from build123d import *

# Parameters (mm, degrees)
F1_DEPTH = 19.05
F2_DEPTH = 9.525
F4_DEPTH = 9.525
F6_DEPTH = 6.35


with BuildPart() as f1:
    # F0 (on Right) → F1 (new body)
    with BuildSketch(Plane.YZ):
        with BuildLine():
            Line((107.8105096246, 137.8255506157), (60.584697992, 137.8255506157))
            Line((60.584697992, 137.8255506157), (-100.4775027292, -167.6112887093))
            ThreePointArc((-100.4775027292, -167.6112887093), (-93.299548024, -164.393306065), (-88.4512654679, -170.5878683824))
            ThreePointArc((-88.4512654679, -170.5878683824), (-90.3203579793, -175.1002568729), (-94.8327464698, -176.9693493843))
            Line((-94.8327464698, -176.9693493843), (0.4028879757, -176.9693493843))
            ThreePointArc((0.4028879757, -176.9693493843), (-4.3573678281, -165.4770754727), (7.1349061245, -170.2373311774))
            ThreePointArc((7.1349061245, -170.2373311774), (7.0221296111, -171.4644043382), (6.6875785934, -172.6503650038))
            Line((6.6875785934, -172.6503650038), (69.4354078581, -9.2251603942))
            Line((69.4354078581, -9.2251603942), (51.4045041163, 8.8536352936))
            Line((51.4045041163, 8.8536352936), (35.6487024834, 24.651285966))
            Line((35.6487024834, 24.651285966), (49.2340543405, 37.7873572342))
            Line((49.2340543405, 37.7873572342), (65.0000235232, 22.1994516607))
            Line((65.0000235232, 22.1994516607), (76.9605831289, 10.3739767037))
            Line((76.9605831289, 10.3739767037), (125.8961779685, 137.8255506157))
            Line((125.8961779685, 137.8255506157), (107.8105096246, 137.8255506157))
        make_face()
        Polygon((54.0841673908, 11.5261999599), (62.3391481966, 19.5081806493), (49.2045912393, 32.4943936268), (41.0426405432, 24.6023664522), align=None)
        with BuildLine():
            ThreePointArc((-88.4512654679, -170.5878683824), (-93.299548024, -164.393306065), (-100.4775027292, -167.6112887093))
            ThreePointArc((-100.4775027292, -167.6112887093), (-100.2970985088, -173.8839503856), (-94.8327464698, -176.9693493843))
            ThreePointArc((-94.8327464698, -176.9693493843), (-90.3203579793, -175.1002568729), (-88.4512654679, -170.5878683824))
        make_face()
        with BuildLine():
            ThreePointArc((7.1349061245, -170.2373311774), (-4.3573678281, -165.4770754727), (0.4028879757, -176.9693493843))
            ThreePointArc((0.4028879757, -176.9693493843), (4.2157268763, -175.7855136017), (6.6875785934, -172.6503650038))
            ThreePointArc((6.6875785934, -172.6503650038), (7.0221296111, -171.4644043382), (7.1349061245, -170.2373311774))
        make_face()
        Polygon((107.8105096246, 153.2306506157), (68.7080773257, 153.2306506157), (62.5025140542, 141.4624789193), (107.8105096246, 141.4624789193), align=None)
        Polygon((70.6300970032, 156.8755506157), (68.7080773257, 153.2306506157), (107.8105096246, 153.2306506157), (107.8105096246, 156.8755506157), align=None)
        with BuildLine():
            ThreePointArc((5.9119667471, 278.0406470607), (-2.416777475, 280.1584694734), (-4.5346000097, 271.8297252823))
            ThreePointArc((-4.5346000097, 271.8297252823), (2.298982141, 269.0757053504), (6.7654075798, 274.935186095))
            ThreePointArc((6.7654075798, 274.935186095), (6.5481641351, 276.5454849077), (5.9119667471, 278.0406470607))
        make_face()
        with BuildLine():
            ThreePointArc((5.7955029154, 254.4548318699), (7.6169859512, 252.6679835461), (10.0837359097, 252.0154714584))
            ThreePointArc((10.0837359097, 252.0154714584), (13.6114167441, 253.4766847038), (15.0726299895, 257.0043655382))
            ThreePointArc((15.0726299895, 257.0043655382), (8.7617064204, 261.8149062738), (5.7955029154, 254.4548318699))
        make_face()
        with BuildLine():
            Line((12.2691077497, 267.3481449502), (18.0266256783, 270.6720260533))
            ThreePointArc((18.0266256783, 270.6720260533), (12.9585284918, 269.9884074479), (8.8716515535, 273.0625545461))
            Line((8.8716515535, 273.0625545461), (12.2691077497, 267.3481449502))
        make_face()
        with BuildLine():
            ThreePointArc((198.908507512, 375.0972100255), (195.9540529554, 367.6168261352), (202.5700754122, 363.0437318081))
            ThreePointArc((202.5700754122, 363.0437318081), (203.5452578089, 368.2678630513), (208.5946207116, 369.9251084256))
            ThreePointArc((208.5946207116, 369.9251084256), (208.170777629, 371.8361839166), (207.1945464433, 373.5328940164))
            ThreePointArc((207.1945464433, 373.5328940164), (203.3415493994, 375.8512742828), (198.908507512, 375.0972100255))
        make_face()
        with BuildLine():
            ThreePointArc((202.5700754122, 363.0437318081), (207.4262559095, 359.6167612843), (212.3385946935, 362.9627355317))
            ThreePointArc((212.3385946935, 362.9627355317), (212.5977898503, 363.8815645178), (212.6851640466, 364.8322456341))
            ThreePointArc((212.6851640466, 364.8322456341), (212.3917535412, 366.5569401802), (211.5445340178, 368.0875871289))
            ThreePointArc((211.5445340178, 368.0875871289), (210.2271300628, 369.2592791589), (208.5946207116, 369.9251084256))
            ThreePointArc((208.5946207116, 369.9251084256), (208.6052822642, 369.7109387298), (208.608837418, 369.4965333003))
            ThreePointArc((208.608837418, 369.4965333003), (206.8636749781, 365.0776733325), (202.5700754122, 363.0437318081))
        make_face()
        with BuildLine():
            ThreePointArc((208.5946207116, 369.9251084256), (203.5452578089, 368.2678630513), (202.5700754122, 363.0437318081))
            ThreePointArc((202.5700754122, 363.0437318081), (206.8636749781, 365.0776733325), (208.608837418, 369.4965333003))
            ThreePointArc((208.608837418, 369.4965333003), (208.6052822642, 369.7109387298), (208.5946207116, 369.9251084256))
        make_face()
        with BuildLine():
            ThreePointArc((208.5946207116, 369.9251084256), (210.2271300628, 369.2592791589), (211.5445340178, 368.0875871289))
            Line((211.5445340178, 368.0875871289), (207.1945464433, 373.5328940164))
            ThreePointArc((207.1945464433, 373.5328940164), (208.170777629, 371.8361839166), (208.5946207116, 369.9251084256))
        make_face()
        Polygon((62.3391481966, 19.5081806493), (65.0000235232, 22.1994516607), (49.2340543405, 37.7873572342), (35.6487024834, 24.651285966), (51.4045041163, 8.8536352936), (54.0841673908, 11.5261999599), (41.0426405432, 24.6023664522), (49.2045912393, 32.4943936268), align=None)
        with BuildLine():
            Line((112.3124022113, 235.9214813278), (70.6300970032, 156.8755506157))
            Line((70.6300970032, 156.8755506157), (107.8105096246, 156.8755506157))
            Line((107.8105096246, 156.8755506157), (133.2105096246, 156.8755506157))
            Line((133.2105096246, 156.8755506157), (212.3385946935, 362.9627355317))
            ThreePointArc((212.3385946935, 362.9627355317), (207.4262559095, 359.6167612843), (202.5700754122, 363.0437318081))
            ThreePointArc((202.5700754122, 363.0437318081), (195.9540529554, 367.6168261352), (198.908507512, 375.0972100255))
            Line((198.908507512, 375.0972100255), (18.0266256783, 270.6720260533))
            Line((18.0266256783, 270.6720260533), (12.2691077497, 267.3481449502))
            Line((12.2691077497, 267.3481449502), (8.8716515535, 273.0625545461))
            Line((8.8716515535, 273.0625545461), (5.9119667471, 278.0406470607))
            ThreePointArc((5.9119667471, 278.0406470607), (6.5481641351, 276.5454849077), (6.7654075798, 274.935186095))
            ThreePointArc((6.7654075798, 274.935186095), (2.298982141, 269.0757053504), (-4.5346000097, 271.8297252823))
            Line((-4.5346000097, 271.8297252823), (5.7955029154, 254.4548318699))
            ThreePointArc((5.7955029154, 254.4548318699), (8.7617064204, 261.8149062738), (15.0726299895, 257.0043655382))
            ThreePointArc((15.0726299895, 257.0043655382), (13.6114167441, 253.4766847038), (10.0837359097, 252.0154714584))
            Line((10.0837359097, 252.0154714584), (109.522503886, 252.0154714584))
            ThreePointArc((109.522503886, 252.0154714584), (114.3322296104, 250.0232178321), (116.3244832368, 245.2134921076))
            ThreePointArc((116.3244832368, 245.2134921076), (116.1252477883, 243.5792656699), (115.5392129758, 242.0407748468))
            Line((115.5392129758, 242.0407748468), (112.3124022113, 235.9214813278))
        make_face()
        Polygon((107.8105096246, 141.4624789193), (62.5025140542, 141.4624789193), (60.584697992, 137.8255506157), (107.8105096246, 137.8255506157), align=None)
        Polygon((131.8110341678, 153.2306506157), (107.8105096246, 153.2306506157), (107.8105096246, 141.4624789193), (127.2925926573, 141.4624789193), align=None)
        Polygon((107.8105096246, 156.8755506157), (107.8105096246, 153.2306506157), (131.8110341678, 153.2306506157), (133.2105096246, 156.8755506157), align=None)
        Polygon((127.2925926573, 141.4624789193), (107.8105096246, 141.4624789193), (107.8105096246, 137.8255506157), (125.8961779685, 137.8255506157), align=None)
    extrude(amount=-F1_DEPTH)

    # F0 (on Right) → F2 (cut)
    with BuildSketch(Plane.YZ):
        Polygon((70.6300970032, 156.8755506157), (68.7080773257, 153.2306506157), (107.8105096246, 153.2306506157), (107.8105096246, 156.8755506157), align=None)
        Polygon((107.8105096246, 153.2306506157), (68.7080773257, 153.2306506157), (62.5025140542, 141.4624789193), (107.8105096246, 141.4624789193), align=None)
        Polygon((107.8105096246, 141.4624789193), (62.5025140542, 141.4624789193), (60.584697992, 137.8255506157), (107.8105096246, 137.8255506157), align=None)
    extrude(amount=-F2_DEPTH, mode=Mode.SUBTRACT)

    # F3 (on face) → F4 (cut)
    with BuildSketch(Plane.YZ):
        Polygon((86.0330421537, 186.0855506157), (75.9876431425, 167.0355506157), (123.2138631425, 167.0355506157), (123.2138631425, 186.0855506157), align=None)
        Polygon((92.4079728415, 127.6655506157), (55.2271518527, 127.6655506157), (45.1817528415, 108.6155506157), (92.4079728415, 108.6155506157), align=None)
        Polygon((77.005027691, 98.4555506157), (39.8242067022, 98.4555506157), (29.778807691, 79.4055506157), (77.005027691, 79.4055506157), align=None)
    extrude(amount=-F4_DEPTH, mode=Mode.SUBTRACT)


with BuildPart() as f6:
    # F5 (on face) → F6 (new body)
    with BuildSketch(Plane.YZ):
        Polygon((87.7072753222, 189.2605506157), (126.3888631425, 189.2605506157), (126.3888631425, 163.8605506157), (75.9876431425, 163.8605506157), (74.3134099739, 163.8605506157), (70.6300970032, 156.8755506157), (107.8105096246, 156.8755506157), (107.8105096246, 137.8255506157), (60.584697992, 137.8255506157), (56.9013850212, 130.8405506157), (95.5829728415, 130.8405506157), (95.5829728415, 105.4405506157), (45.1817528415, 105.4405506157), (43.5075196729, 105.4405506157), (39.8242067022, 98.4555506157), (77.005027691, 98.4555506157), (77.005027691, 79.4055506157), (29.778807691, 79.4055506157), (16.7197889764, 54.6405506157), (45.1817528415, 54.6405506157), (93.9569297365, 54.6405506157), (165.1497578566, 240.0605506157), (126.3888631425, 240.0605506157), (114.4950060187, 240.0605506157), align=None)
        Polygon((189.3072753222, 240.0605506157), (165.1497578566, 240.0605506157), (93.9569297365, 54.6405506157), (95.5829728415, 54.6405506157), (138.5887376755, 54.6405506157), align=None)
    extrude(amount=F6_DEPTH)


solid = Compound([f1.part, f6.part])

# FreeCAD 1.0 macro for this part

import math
import FreeCAD as App
import Part
import Sketcher
from FreeCAD import Vector
Q = App.Units.Quantity

doc = App.newDocument("Part")
body = doc.addObject("PartDesign::Body", "Body")

# Sketch on YZ plane
sketch1 = body.newObject("Sketcher::SketchObject", "Sketch")
sketch1.AttachmentSupport = (doc.getObject("YZ_Plane"), [""])
sketch1.MapMode = "FlatFace"
sketch1.addGeometry([
    Part.LineSegment(Vector(60.584698, 137.825551, 0), Vector(-100.477503, -167.611289, 0)),  # 0
    Part.ArcOfCircle(Part.Circle(Vector(-94.832746, -170.587868, 0), Vector(0, 0, 1), 6.381481), math.radians(152.196527), math.radians(270)),  # 1
    Part.LineSegment(Vector(-94.832746, -176.969349, 0), Vector(0.402888, -176.969349, 0)),  # 2
    Part.ArcOfCircle(Part.Circle(Vector(0.402888, -170.237331, 0), Vector(0, 0, 1), 6.732018), math.radians(-90), math.radians(-21.004506)),  # 3
    Part.LineSegment(Vector(6.687579, -172.650365, 0), Vector(69.435408, -9.22516, 0)),  # 4
    Part.LineSegment(Vector(69.435408, -9.22516, 0), Vector(51.404504, 8.853635, 0)),  # 5
    Part.LineSegment(Vector(51.404504, 8.853635, 0), Vector(54.084167, 11.5262, 0)),  # 6
    Part.LineSegment(Vector(54.084167, 11.5262, 0), Vector(62.339148, 19.508181, 0)),  # 7
    Part.LineSegment(Vector(62.339148, 19.508181, 0), Vector(65.000024, 22.199452, 0)),  # 8
    Part.LineSegment(Vector(65.000024, 22.199452, 0), Vector(76.960583, 10.373977, 0)),  # 9
    Part.LineSegment(Vector(76.960583, 10.373977, 0), Vector(125.896178, 137.825551, 0)),  # 10
    Part.LineSegment(Vector(125.896178, 137.825551, 0), Vector(127.292593, 141.462479, 0)),  # 11
    Part.LineSegment(Vector(127.292593, 141.462479, 0), Vector(131.811034, 153.230651, 0)),  # 12
    Part.LineSegment(Vector(131.811034, 153.230651, 0), Vector(133.21051, 156.875551, 0)),  # 13
    Part.LineSegment(Vector(133.21051, 156.875551, 0), Vector(212.338595, 362.962736, 0)),  # 14
    Part.ArcOfCircle(Part.Circle(Vector(207.4695, 364.832246, 0), Vector(0, 0, 1), 5.215664), math.radians(-21.004512), math.radians(0)),  # 15
    Part.ArcOfCircle(Part.Circle(Vector(207.4695, 364.832246, 0), Vector(0, 0, 1), 5.215664), math.radians(0), math.radians(38.619617)),  # 16
    Part.LineSegment(Vector(211.544534, 368.087587, 0), Vector(207.194546, 373.532894, 0)),  # 17
    Part.ArcOfCircle(Part.Circle(Vector(202.141842, 369.496533, 0), Vector(0, 0, 1), 6.466996), math.radians(38.619662), math.radians(119.998329)),  # 18
    Part.LineSegment(Vector(198.908508, 375.09721, 0), Vector(18.026626, 270.672026, 0)),  # 19
    Part.ArcOfCircle(Part.Circle(Vector(14.659833, 276.503872, 0), Vector(0, 0, 1), 6.733923), math.radians(-149.266739), math.radians(-60.001662)),  # 20
    Part.LineSegment(Vector(8.871652, 273.062555, 0), Vector(5.911967, 278.040647, 0)),  # 21
    Part.ArcOfCircle(Part.Circle(Vector(0.688683, 274.935186, 0), Vector(0, 0, 1), 6.076724), math.radians(30.733258), math.radians(210.733257)),  # 22
    Part.LineSegment(Vector(-4.5346, 271.829725, 0), Vector(5.795503, 254.454832, 0)),  # 23
    Part.ArcOfCircle(Part.Circle(Vector(10.083736, 257.004366, 0), Vector(0, 0, 1), 4.988894), math.radians(-149.266748), math.radians(-90)),  # 24
    Part.LineSegment(Vector(10.083736, 252.015471, 0), Vector(109.522504, 252.015471, 0)),  # 25
    Part.ArcOfCircle(Part.Circle(Vector(109.522504, 245.213492, 0), Vector(0, 0, 1), 6.801979), math.radians(0), math.radians(90)),  # 26
    Part.ArcOfCircle(Part.Circle(Vector(109.522504, 245.213492, 0), Vector(0, 0, 1), 6.801979), math.radians(-27.803475), math.radians(0)),  # 27
    Part.LineSegment(Vector(115.539213, 242.040775, 0), Vector(112.312402, 235.921481, 0)),  # 28
    Part.LineSegment(Vector(112.312402, 235.921481, 0), Vector(70.630097, 156.875551, 0)),  # 29
    Part.LineSegment(Vector(70.630097, 156.875551, 0), Vector(68.708077, 153.230651, 0)),  # 30
    Part.LineSegment(Vector(68.708077, 153.230651, 0), Vector(62.502514, 141.462479, 0)),  # 31
    Part.LineSegment(Vector(62.502514, 141.462479, 0), Vector(60.584698, 137.825551, 0)),  # 32
], False)
sketch1.addConstraint([
    Sketcher.Constraint("Coincident", 0, 2, 1, 1),
    Sketcher.Constraint("Coincident", 1, 2, 2, 1),
    Sketcher.Constraint("Coincident", 2, 2, 3, 1),
    Sketcher.Constraint("Coincident", 3, 2, 4, 1),
    Sketcher.Constraint("Coincident", 4, 2, 5, 1),
    Sketcher.Constraint("Coincident", 5, 2, 6, 1),
    Sketcher.Constraint("Coincident", 6, 2, 7, 1),
    Sketcher.Constraint("Coincident", 7, 2, 8, 1),
    Sketcher.Constraint("Coincident", 8, 2, 9, 1),
    Sketcher.Constraint("Coincident", 9, 2, 10, 1),
    Sketcher.Constraint("Coincident", 10, 2, 11, 1),
    Sketcher.Constraint("Coincident", 11, 2, 12, 1),
    Sketcher.Constraint("Coincident", 12, 2, 13, 1),
    Sketcher.Constraint("Coincident", 13, 2, 14, 1),
    Sketcher.Constraint("Coincident", 14, 2, 15, 1),
    Sketcher.Constraint("Coincident", 15, 2, 16, 1),
    Sketcher.Constraint("Coincident", 16, 2, 17, 1),
    Sketcher.Constraint("Coincident", 17, 2, 18, 1),
    Sketcher.Constraint("Coincident", 18, 2, 19, 1),
    Sketcher.Constraint("Coincident", 19, 2, 20, 2),
    Sketcher.Constraint("Coincident", 20, 1, 21, 1),
    Sketcher.Constraint("Coincident", 21, 2, 22, 1),
    Sketcher.Constraint("Coincident", 22, 2, 23, 1),
    Sketcher.Constraint("Coincident", 23, 2, 24, 1),
    Sketcher.Constraint("Coincident", 24, 2, 25, 1),
    Sketcher.Constraint("Coincident", 25, 2, 26, 2),
    Sketcher.Constraint("Coincident", 26, 1, 27, 2),
    Sketcher.Constraint("Coincident", 27, 1, 28, 1),
    Sketcher.Constraint("Coincident", 28, 2, 29, 1),
    Sketcher.Constraint("Coincident", 29, 2, 30, 1),
    Sketcher.Constraint("Coincident", 30, 2, 31, 1),
    Sketcher.Constraint("Coincident", 31, 2, 32, 1),
    Sketcher.Constraint("Coincident", 32, 2, 0, 1),
    Sketcher.Constraint("Horizontal", 2),
    Sketcher.Constraint("Horizontal", 25),
    Sketcher.Constraint("Coincident", 16, 3, 15, 3),
    Sketcher.Constraint("Coincident", 27, 3, 26, 3),
    Sketcher.Constraint("DistanceY", 10, 2, 13, 2, Q("0.75 in")),
    Sketcher.Constraint("DistanceY", 10, 2, 29, 2, Q("0.75 in")),
    Sketcher.Constraint("DistanceY", 32, 2, 29, 2, Q("0.75 in")),
    Sketcher.Constraint("Distance", 6, Q("0.149 in")),
    Sketcher.Constraint("Distance", 8, Q("0.149 in")),
    Sketcher.Constraint("Radius", 1, Q("6.381481 mm")),
    Sketcher.Constraint("Radius", 3, Q("6.732018 mm")),
    Sketcher.Constraint("Radius", 26, Q("6.801979 mm")),
    Sketcher.Constraint("Radius", 15, Q("5.215664 mm")),
    Sketcher.Constraint("Radius", 18, Q("6.466996 mm")),
    Sketcher.Constraint("Radius", 20, Q("6.733923 mm")),
    Sketcher.Constraint("Radius", 22, Q("6.076724 mm")),
    Sketcher.Constraint("Radius", 24, Q("4.988894 mm")),
    Sketcher.Constraint("DistanceY", 10, 2, 12, 2, Q("0.6065 in")),
    Sketcher.Constraint("DistanceX", 19, 2, 26, 3, Q("3.6021999 in")),
    Sketcher.Constraint("DistanceY", 24, 3, 21, 2, Q("0.8282001 in")),
    Sketcher.Constraint("DistanceX", 19, 2, 25, 2, Q("3.6021999 in")),
    Sketcher.Constraint("DistanceY", 30, 2, 29, 2, Q("0.1435 in")),
    Sketcher.Constraint("DistanceX", 30, 2, 10, 2, Q("2.2515 in")),
    Sketcher.Constraint("Distance", 12, Q("12.605799 mm")),
    Sketcher.Constraint("Distance", 32, Q("4.111601 mm")),
    Sketcher.Constraint("DistanceX", -1, 1, 15, 3, Q("207.4695 mm")),
    Sketcher.Constraint("DistanceY", -1, 1, 6, 2, Q("11.5262 mm")),
    Sketcher.Constraint("DistanceX", 22, 2, -1, 1, Q("4.5346 mm")),
    Sketcher.Constraint("DistanceY", 1, 3, 18, 3, Q("540.084402 mm")),
    Sketcher.Constraint("DistanceY", 3, 2, 5, 2, Q("181.504 mm")),
    Sketcher.Constraint("DistanceY", 8, 2, 10, 2, Q("115.626099 mm")),
    Sketcher.Constraint("DistanceY", 7, 2, 11, 2, Q("121.954298 mm")),
    Sketcher.Constraint("DistanceY", 25, 2, 20, 3, Q("24.4884 mm")),
    Sketcher.Constraint("DistanceX", 27, 3, 28, 2, Q("2.789898 mm")),
    Sketcher.Constraint("DistanceX", 32, 2, 29, 2, Q("10.045399 mm")),
    Sketcher.Constraint("Distance", 7, Q("11.482888 mm")),
    Sketcher.Constraint("Distance", 21, Q("5.791471 mm")),
    Sketcher.Constraint("DistanceX", 2, 1, 2, 2, Q("95.235634 mm")),
    Sketcher.Constraint("DistanceX", 25, 1, 25, 2, Q("99.438768 mm")),
    Sketcher.Constraint("DistanceY", 1, 3, -1, 1, Q("170.587868 mm")),
    Sketcher.Constraint("DistanceX", -1, 1, 18, 3, Q("202.141842 mm")),
    Sketcher.Constraint("DistanceY", -1, 1, 20, 3, Q("276.503872 mm")),
    Sketcher.Constraint("DistanceY", 0, 2, -1, 1, Q("167.611289 mm")),
    Sketcher.Constraint("DistanceX", -1, 1, 3, 2, Q("6.687579 mm")),
    Sketcher.Constraint("DistanceY", 4, 2, -1, 1, Q("9.22516 mm")),
    Sketcher.Constraint("DistanceX", -1, 1, 7, 2, Q("62.339148 mm")),
    Sketcher.Constraint("DistanceY", -1, 1, 7, 2, Q("19.508181 mm")),
    Sketcher.Constraint("DistanceY", -1, 1, 8, 2, Q("22.199452 mm")),
    Sketcher.Constraint("DistanceX", -1, 1, 13, 2, Q("133.21051 mm")),
    Sketcher.Constraint("DistanceY", -1, 1, 18, 2, Q("375.09721 mm")),
    Sketcher.Constraint("DistanceX", -1, 1, 20, 1, Q("8.871652 mm")),
    Sketcher.Constraint("DistanceY", -1, 1, 23, 2, Q("254.454832 mm")),
    Sketcher.Constraint("DistanceY", -1, 1, 28, 2, Q("235.921481 mm")),
    Sketcher.Constraint("DistanceY", -1, 1, 31, 2, Q("141.462479 mm")),
    Sketcher.Constraint("DistanceX", 1, 3, 18, 3, Q("296.974588 mm")),
    Sketcher.Constraint("DistanceX", 20, 3, 18, 3, Q("187.482008 mm")),
    Sketcher.Constraint("DistanceX", 22, 3, 20, 3, Q("13.97115 mm")),
    Sketcher.Constraint("DistanceY", 22, 3, 15, 3, Q("89.89706 mm")),
    Sketcher.Constraint("DistanceX", 20, 3, 26, 3, Q("94.86267 mm")),
    Sketcher.Constraint("DistanceX", 0, 2, 3, 3, Q("100.880391 mm")),
    Sketcher.Constraint("DistanceX", 0, 2, 24, 3, Q("110.561239 mm")),
    Sketcher.Constraint("DistanceX", 1, 2, 22, 3, Q("95.52143 mm")),
    Sketcher.Constraint("DistanceX", 3, 2, 4, 2, Q("62.747829 mm")),
    Sketcher.Constraint("DistanceX", 8, 2, 9, 2, Q("11.96056 mm")),
    Sketcher.Constraint("DistanceY", 5, 2, 9, 2, Q("1.520341 mm")),
    Sketcher.Constraint("DistanceX", 7, 2, 10, 2, Q("63.55703 mm")),
    Sketcher.Constraint("DistanceX", 27, 3, 11, 2, Q("17.770089 mm")),
    Sketcher.Constraint("DistanceY", 14, 2, 16, 3, Q("1.86951 mm")),
    Sketcher.Constraint("DistanceY", 14, 2, 15, 2, Q("1.86951 mm")),
    Sketcher.Constraint("DistanceX", 16, 2, 15, 2, Q("1.14063 mm")),
    Sketcher.Constraint("DistanceY", 18, 3, 17, 2, Q("4.036361 mm")),
    Sketcher.Constraint("DistanceY", 26, 1, 25, 2, Q("6.801979 mm")),
    Sketcher.Constraint("DistanceX", 27, 1, 26, 1, Q("0.78527 mm")),
    Sketcher.Constraint("DistanceX", 29, 2, 10, 2, Q("55.266081 mm")),
])
pad1 = body.newObject("PartDesign::Pad", "Pad")
pad1.Profile = sketch1
pad1.Length = Q("0.75 in")
pad1.Reversed = True

# Sketch on YZ plane
sketch2 = body.newObject("Sketcher::SketchObject", "Sketch001")
sketch2.AttachmentSupport = (doc.getObject("YZ_Plane"), [""])
sketch2.MapMode = "FlatFace"
sketch2.addGeometry([
    Part.LineSegment(Vector(70.630097, 156.875551, 0), Vector(68.708077, 153.230651, 0)),  # 0
    Part.LineSegment(Vector(68.708077, 153.230651, 0), Vector(62.502514, 141.462479, 0)),  # 1
    Part.LineSegment(Vector(62.502514, 141.462479, 0), Vector(60.584698, 137.825551, 0)),  # 2
    Part.LineSegment(Vector(60.584698, 137.825551, 0), Vector(107.81051, 137.825551, 0)),  # 3
    Part.LineSegment(Vector(107.81051, 137.825551, 0), Vector(107.81051, 156.875551, 0)),  # 4
    Part.LineSegment(Vector(107.81051, 156.875551, 0), Vector(70.630097, 156.875551, 0)),  # 5
], False)
sketch2.addConstraint([
    Sketcher.Constraint("Coincident", 0, 2, 1, 1),
    Sketcher.Constraint("Coincident", 1, 2, 2, 1),
    Sketcher.Constraint("Coincident", 2, 2, 3, 1),
    Sketcher.Constraint("Coincident", 3, 2, 4, 1),
    Sketcher.Constraint("Coincident", 4, 2, 5, 1),
    Sketcher.Constraint("Coincident", 5, 2, 0, 1),
    Sketcher.Constraint("Horizontal", 3),
    Sketcher.Constraint("Vertical", 4),
    Sketcher.Constraint("Horizontal", 5),
    Sketcher.Constraint("Parallel", 0, 1),
    Sketcher.Constraint("Parallel", 1, 2),
    Sketcher.Constraint("DistanceY", 4, 1, 4, 2, Q("0.75 in")),
    Sketcher.Constraint("DistanceY", 2, 2, 0, 2, Q("0.6065 in")),
    Sketcher.Constraint("Distance", 2, Q("4.111601 mm")),
    Sketcher.Constraint("DistanceX", 3, 1, 3, 2, Q("47.225812 mm")),
    Sketcher.Constraint("DistanceX", 2, 2, 5, 2, Q("10.045399 mm")),
    Sketcher.Constraint("DistanceY", -1, 1, 0, 2, Q("153.230651 mm")),
    Sketcher.Constraint("DistanceX", -1, 1, 3, 2, Q("107.81051 mm")),
])
pocket1 = body.newObject("PartDesign::Pocket", "Pocket")
pocket1.Profile = sketch2
pocket1.Length = Q("0.375 in")

# Sketch on YZ plane
sketch3 = body.newObject("Sketcher::SketchObject", "Sketch002")
sketch3.AttachmentSupport = (doc.getObject("YZ_Plane"), [""])
sketch3.MapMode = "FlatFace"
sketch3.addGeometry([
    Part.LineSegment(Vector(86.033042, 186.085551, 0), Vector(75.987643, 167.035551, 0)),  # 0
    Part.LineSegment(Vector(75.987643, 167.035551, 0), Vector(123.213863, 167.035551, 0)),  # 1
    Part.LineSegment(Vector(123.213863, 167.035551, 0), Vector(123.213863, 186.085551, 0)),  # 2
    Part.LineSegment(Vector(123.213863, 186.085551, 0), Vector(86.033042, 186.085551, 0)),  # 3
    Part.LineSegment(Vector(92.407973, 127.665551, 0), Vector(55.227152, 127.665551, 0)),  # 4
    Part.LineSegment(Vector(55.227152, 127.665551, 0), Vector(45.181753, 108.615551, 0)),  # 5
    Part.LineSegment(Vector(45.181753, 108.615551, 0), Vector(92.407973, 108.615551, 0)),  # 6
    Part.LineSegment(Vector(92.407973, 108.615551, 0), Vector(92.407973, 127.665551, 0)),  # 7
    Part.LineSegment(Vector(77.005028, 98.455551, 0), Vector(39.824207, 98.455551, 0)),  # 8
    Part.LineSegment(Vector(39.824207, 98.455551, 0), Vector(29.778808, 79.405551, 0)),  # 9
    Part.LineSegment(Vector(29.778808, 79.405551, 0), Vector(77.005028, 79.405551, 0)),  # 10
    Part.LineSegment(Vector(77.005028, 79.405551, 0), Vector(77.005028, 98.455551, 0)),  # 11
], False)
sketch3.addConstraint([
    Sketcher.Constraint("Coincident", 0, 2, 1, 1),
    Sketcher.Constraint("Coincident", 1, 2, 2, 1),
    Sketcher.Constraint("Coincident", 2, 2, 3, 1),
    Sketcher.Constraint("Coincident", 3, 2, 0, 1),
    Sketcher.Constraint("Coincident", 4, 2, 5, 1),
    Sketcher.Constraint("Coincident", 5, 2, 6, 1),
    Sketcher.Constraint("Coincident", 6, 2, 7, 1),
    Sketcher.Constraint("Coincident", 7, 2, 4, 1),
    Sketcher.Constraint("Coincident", 8, 2, 9, 1),
    Sketcher.Constraint("Coincident", 9, 2, 10, 1),
    Sketcher.Constraint("Coincident", 10, 2, 11, 1),
    Sketcher.Constraint("Coincident", 11, 2, 8, 1),
    Sketcher.Constraint("Horizontal", 1),
    Sketcher.Constraint("Vertical", 2),
    Sketcher.Constraint("Horizontal", 3),
    Sketcher.Constraint("Horizontal", 4),
    Sketcher.Constraint("Horizontal", 6),
    Sketcher.Constraint("Vertical", 7),
    Sketcher.Constraint("Horizontal", 8),
    Sketcher.Constraint("Horizontal", 10),
    Sketcher.Constraint("Vertical", 11),
    Sketcher.Constraint("Parallel", 0, 5),
    Sketcher.Constraint("Parallel", 5, 9),
    Sketcher.Constraint("Equal", 3, 4),
    Sketcher.Constraint("Equal", 1, 6),
    Sketcher.Constraint("Equal", 4, 8),
    Sketcher.Constraint("Equal", 6, 10),
    Sketcher.Constraint("DistanceY", 2, 1, 2, 2, Q("0.75 in")),
    Sketcher.Constraint("DistanceY", 4, 2, 3, 2, Q("2.3 in")),
    Sketcher.Constraint("DistanceY", 8, 2, 5, 2, Q("0.4 in")),
    Sketcher.Constraint("DistanceX", 1, 1, 1, 2, Q("1.8593 in")),
    Sketcher.Constraint("DistanceX", 3, 2, 3, 1, Q("37.180821 mm")),
    Sketcher.Constraint("DistanceY", -1, 1, 0, 2, Q("167.035551 mm")),
    Sketcher.Constraint("DistanceX", -1, 1, 4, 2, Q("55.227152 mm")),
    Sketcher.Constraint("DistanceX", 4, 2, 0, 2, Q("20.760491 mm")),
    Sketcher.Constraint("DistanceX", -1, 1, 8, 2, Q("39.824207 mm")),
])
pocket2 = body.newObject("PartDesign::Pocket", "Pocket001")
pocket2.Profile = sketch3
pocket2.Length = Q("0.375 in")
body2 = doc.addObject("PartDesign::Body", "Body001")

# Sketch on YZ plane
sketch4 = body2.newObject("Sketcher::SketchObject", "Sketch003")
sketch4.AttachmentSupport = (doc.getObject("YZ_Plane001"), [""])
sketch4.MapMode = "FlatFace"
sketch4.addGeometry([
    Part.LineSegment(Vector(87.707275, 189.260551, 0), Vector(126.388863, 189.260551, 0)),  # 0
    Part.LineSegment(Vector(126.388863, 189.260551, 0), Vector(126.388863, 163.860551, 0)),  # 1
    Part.LineSegment(Vector(126.388863, 163.860551, 0), Vector(74.31341, 163.860551, 0)),  # 2
    Part.LineSegment(Vector(74.31341, 163.860551, 0), Vector(70.630097, 156.875551, 0)),  # 3
    Part.LineSegment(Vector(70.630097, 156.875551, 0), Vector(107.81051, 156.875551, 0)),  # 4
    Part.LineSegment(Vector(107.81051, 156.875551, 0), Vector(107.81051, 137.825551, 0)),  # 5
    Part.LineSegment(Vector(107.81051, 137.825551, 0), Vector(60.584698, 137.825551, 0)),  # 6
    Part.LineSegment(Vector(60.584698, 137.825551, 0), Vector(56.901385, 130.840551, 0)),  # 7
    Part.LineSegment(Vector(56.901385, 130.840551, 0), Vector(95.582973, 130.840551, 0)),  # 8
    Part.LineSegment(Vector(95.582973, 130.840551, 0), Vector(95.582973, 105.440551, 0)),  # 9
    Part.LineSegment(Vector(95.582973, 105.440551, 0), Vector(43.50752, 105.440551, 0)),  # 10
    Part.LineSegment(Vector(43.50752, 105.440551, 0), Vector(39.824207, 98.455551, 0)),  # 11
    Part.LineSegment(Vector(39.824207, 98.455551, 0), Vector(77.005028, 98.455551, 0)),  # 12
    Part.LineSegment(Vector(77.005028, 98.455551, 0), Vector(77.005028, 79.405551, 0)),  # 13
    Part.LineSegment(Vector(77.005028, 79.405551, 0), Vector(29.778808, 79.405551, 0)),  # 14
    Part.LineSegment(Vector(29.778808, 79.405551, 0), Vector(16.719789, 54.640551, 0)),  # 15
    Part.LineSegment(Vector(16.719789, 54.640551, 0), Vector(138.588738, 54.640551, 0)),  # 16
    Part.LineSegment(Vector(138.588738, 54.640551, 0), Vector(189.307275, 240.060551, 0)),  # 17
    Part.LineSegment(Vector(189.307275, 240.060551, 0), Vector(114.495006, 240.060551, 0)),  # 18
    Part.LineSegment(Vector(114.495006, 240.060551, 0), Vector(87.707275, 189.260551, 0)),  # 19
], False)
sketch4.addConstraint([
    Sketcher.Constraint("Coincident", 0, 2, 1, 1),
    Sketcher.Constraint("Coincident", 1, 2, 2, 1),
    Sketcher.Constraint("Coincident", 2, 2, 3, 1),
    Sketcher.Constraint("Coincident", 3, 2, 4, 1),
    Sketcher.Constraint("Coincident", 4, 2, 5, 1),
    Sketcher.Constraint("Coincident", 5, 2, 6, 1),
    Sketcher.Constraint("Coincident", 6, 2, 7, 1),
    Sketcher.Constraint("Coincident", 7, 2, 8, 1),
    Sketcher.Constraint("Coincident", 8, 2, 9, 1),
    Sketcher.Constraint("Coincident", 9, 2, 10, 1),
    Sketcher.Constraint("Coincident", 10, 2, 11, 1),
    Sketcher.Constraint("Coincident", 11, 2, 12, 1),
    Sketcher.Constraint("Coincident", 12, 2, 13, 1),
    Sketcher.Constraint("Coincident", 13, 2, 14, 1),
    Sketcher.Constraint("Coincident", 14, 2, 15, 1),
    Sketcher.Constraint("Coincident", 15, 2, 16, 1),
    Sketcher.Constraint("Coincident", 16, 2, 17, 1),
    Sketcher.Constraint("Coincident", 17, 2, 18, 1),
    Sketcher.Constraint("Coincident", 18, 2, 19, 1),
    Sketcher.Constraint("Coincident", 19, 2, 0, 1),
    Sketcher.Constraint("Horizontal", 0),
    Sketcher.Constraint("Vertical", 1),
    Sketcher.Constraint("Horizontal", 2),
    Sketcher.Constraint("Horizontal", 4),
    Sketcher.Constraint("Vertical", 5),
    Sketcher.Constraint("Horizontal", 6),
    Sketcher.Constraint("Horizontal", 8),
    Sketcher.Constraint("Vertical", 9),
    Sketcher.Constraint("Horizontal", 10),
    Sketcher.Constraint("Horizontal", 12),
    Sketcher.Constraint("Vertical", 13),
    Sketcher.Constraint("Horizontal", 14),
    Sketcher.Constraint("Horizontal", 16),
    Sketcher.Constraint("Horizontal", 18),
    Sketcher.Constraint("Parallel", 3, 7),
    Sketcher.Constraint("Parallel", 7, 11),
    Sketcher.Constraint("Parallel", 11, 15),
    Sketcher.Constraint("Parallel", 15, 19),
    Sketcher.Constraint("Equal", 0, 8),
    Sketcher.Constraint("Equal", 2, 10),
    Sketcher.Constraint("Equal", 1, 9),
    Sketcher.Constraint("Equal", 5, 13),
    Sketcher.Constraint("Equal", 3, 7),
    Sketcher.Constraint("Equal", 7, 11),
    Sketcher.Constraint("DistanceY", 1, 2, 1, 1, Q("1 in")),
    Sketcher.Constraint("DistanceY", 15, 2, 10, 2, Q("2 in")),
    Sketcher.Constraint("DistanceY", 0, 2, 17, 2, Q("2 in")),
    Sketcher.Constraint("DistanceY", 5, 2, 5, 1, Q("0.75 in")),
    Sketcher.Constraint("DistanceY", 7, 2, 2, 2, Q("1.3 in")),
    Sketcher.Constraint("DistanceX", 14, 2, 14, 1, Q("1.8593 in")),
    Sketcher.Constraint("Distance", 15, Q("27.9972 mm")),
    Sketcher.Constraint("DistanceX", 6, 2, 6, 1, Q("47.225812 mm")),
    Sketcher.Constraint("DistanceX", 12, 1, 12, 2, Q("37.180821 mm")),
    Sketcher.Constraint("DistanceX", 16, 1, 16, 2, Q("121.868949 mm")),
    Sketcher.Constraint("DistanceX", 18, 2, 18, 1, Q("74.812269 mm")),
    Sketcher.Constraint("DistanceX", 2, 2, 4, 2, Q("33.4971 mm")),
    Sketcher.Constraint("Distance", 17, Q("192.231492 mm")),
    Sketcher.Constraint("DistanceX", 0, 1, 0, 2, Q("38.681588 mm")),
    Sketcher.Constraint("DistanceY", -1, 1, 0, 2, Q("189.260551 mm")),
    Sketcher.Constraint("DistanceX", -1, 1, 2, 2, Q("74.31341 mm")),
])
pad2 = body2.newObject("PartDesign::Pad", "Pad001")
pad2.Profile = sketch4
pad2.Length = Q("0.25 in")

doc.recompute()
